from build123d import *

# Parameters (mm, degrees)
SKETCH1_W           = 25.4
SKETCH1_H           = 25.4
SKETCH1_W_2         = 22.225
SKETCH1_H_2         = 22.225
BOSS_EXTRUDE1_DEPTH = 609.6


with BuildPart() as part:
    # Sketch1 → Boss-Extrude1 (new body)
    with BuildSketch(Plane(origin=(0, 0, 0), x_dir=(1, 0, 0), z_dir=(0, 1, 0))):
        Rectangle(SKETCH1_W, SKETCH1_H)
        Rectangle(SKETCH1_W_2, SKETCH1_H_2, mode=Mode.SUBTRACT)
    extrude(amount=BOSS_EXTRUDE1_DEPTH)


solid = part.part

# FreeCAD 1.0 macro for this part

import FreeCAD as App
import Part
import Sketcher

V = App.Vector
Q = App.Units.Quantity


def add_polygon(sketch, points):
    """Adds a closed chain of lines whose ends are joined by coincident constraints."""
    first, n = sketch.GeometryCount, len(points)
    for a, b in zip(points, points[1:] + points[:1]):
        sketch.addGeometry(Part.LineSegment(App.Vector(*a, 0), App.Vector(*b, 0)), False)
    for i in range(n):
        sketch.addConstraint(Sketcher.Constraint("Coincident", first + i, 2, first + (i + 1) % n, 1))

doc = App.newDocument("Part")
body = doc.addObject("PartDesign::Body", "Body")

sketch1 = body.newObject("Sketcher::SketchObject", "Sketch")
sketch1.AttachmentSupport = (doc.getObject("XZ_Plane"), [""])
sketch1.MapMode = "FlatFace"
add_polygon(sketch1, [(-13, -13), (-13, 13), (13, 13), (13, -13)])
add_polygon(sketch1, [(11, 11), (-11, 11), (-11, -11), (11, -11)])
sketch1.addConstraint([
    Sketcher.Constraint("Vertical", 0),
    Sketcher.Constraint("Horizontal", 1),
    Sketcher.Constraint("Vertical", 2),
    Sketcher.Constraint("Horizontal", 3),
    Sketcher.Constraint("Horizontal", 4),
    Sketcher.Constraint("Vertical", 5),
    Sketcher.Constraint("Horizontal", 6),
    Sketcher.Constraint("Vertical", 7),
    Sketcher.Constraint("Symmetric", 0, 2, 2, 2, -1, 1),
    Sketcher.Constraint("Symmetric", 4, 2, 6, 2, -1, 1),
    Sketcher.Constraint("Equal", 3, 0),
    Sketcher.Constraint("Equal", 6, 5),
    Sketcher.Constraint("DistanceX", 1, 1, 1, 2, Q("1 in")),
    Sketcher.Constraint("DistanceX", 4, 2, 4, 1, Q("0.875 in")),
])
pad1 = body.newObject("PartDesign::Pad", "Pad")
pad1.Profile = sketch1
pad1.Length = Q("24 in")
pad1.Reversed = True

doc.recompute()
